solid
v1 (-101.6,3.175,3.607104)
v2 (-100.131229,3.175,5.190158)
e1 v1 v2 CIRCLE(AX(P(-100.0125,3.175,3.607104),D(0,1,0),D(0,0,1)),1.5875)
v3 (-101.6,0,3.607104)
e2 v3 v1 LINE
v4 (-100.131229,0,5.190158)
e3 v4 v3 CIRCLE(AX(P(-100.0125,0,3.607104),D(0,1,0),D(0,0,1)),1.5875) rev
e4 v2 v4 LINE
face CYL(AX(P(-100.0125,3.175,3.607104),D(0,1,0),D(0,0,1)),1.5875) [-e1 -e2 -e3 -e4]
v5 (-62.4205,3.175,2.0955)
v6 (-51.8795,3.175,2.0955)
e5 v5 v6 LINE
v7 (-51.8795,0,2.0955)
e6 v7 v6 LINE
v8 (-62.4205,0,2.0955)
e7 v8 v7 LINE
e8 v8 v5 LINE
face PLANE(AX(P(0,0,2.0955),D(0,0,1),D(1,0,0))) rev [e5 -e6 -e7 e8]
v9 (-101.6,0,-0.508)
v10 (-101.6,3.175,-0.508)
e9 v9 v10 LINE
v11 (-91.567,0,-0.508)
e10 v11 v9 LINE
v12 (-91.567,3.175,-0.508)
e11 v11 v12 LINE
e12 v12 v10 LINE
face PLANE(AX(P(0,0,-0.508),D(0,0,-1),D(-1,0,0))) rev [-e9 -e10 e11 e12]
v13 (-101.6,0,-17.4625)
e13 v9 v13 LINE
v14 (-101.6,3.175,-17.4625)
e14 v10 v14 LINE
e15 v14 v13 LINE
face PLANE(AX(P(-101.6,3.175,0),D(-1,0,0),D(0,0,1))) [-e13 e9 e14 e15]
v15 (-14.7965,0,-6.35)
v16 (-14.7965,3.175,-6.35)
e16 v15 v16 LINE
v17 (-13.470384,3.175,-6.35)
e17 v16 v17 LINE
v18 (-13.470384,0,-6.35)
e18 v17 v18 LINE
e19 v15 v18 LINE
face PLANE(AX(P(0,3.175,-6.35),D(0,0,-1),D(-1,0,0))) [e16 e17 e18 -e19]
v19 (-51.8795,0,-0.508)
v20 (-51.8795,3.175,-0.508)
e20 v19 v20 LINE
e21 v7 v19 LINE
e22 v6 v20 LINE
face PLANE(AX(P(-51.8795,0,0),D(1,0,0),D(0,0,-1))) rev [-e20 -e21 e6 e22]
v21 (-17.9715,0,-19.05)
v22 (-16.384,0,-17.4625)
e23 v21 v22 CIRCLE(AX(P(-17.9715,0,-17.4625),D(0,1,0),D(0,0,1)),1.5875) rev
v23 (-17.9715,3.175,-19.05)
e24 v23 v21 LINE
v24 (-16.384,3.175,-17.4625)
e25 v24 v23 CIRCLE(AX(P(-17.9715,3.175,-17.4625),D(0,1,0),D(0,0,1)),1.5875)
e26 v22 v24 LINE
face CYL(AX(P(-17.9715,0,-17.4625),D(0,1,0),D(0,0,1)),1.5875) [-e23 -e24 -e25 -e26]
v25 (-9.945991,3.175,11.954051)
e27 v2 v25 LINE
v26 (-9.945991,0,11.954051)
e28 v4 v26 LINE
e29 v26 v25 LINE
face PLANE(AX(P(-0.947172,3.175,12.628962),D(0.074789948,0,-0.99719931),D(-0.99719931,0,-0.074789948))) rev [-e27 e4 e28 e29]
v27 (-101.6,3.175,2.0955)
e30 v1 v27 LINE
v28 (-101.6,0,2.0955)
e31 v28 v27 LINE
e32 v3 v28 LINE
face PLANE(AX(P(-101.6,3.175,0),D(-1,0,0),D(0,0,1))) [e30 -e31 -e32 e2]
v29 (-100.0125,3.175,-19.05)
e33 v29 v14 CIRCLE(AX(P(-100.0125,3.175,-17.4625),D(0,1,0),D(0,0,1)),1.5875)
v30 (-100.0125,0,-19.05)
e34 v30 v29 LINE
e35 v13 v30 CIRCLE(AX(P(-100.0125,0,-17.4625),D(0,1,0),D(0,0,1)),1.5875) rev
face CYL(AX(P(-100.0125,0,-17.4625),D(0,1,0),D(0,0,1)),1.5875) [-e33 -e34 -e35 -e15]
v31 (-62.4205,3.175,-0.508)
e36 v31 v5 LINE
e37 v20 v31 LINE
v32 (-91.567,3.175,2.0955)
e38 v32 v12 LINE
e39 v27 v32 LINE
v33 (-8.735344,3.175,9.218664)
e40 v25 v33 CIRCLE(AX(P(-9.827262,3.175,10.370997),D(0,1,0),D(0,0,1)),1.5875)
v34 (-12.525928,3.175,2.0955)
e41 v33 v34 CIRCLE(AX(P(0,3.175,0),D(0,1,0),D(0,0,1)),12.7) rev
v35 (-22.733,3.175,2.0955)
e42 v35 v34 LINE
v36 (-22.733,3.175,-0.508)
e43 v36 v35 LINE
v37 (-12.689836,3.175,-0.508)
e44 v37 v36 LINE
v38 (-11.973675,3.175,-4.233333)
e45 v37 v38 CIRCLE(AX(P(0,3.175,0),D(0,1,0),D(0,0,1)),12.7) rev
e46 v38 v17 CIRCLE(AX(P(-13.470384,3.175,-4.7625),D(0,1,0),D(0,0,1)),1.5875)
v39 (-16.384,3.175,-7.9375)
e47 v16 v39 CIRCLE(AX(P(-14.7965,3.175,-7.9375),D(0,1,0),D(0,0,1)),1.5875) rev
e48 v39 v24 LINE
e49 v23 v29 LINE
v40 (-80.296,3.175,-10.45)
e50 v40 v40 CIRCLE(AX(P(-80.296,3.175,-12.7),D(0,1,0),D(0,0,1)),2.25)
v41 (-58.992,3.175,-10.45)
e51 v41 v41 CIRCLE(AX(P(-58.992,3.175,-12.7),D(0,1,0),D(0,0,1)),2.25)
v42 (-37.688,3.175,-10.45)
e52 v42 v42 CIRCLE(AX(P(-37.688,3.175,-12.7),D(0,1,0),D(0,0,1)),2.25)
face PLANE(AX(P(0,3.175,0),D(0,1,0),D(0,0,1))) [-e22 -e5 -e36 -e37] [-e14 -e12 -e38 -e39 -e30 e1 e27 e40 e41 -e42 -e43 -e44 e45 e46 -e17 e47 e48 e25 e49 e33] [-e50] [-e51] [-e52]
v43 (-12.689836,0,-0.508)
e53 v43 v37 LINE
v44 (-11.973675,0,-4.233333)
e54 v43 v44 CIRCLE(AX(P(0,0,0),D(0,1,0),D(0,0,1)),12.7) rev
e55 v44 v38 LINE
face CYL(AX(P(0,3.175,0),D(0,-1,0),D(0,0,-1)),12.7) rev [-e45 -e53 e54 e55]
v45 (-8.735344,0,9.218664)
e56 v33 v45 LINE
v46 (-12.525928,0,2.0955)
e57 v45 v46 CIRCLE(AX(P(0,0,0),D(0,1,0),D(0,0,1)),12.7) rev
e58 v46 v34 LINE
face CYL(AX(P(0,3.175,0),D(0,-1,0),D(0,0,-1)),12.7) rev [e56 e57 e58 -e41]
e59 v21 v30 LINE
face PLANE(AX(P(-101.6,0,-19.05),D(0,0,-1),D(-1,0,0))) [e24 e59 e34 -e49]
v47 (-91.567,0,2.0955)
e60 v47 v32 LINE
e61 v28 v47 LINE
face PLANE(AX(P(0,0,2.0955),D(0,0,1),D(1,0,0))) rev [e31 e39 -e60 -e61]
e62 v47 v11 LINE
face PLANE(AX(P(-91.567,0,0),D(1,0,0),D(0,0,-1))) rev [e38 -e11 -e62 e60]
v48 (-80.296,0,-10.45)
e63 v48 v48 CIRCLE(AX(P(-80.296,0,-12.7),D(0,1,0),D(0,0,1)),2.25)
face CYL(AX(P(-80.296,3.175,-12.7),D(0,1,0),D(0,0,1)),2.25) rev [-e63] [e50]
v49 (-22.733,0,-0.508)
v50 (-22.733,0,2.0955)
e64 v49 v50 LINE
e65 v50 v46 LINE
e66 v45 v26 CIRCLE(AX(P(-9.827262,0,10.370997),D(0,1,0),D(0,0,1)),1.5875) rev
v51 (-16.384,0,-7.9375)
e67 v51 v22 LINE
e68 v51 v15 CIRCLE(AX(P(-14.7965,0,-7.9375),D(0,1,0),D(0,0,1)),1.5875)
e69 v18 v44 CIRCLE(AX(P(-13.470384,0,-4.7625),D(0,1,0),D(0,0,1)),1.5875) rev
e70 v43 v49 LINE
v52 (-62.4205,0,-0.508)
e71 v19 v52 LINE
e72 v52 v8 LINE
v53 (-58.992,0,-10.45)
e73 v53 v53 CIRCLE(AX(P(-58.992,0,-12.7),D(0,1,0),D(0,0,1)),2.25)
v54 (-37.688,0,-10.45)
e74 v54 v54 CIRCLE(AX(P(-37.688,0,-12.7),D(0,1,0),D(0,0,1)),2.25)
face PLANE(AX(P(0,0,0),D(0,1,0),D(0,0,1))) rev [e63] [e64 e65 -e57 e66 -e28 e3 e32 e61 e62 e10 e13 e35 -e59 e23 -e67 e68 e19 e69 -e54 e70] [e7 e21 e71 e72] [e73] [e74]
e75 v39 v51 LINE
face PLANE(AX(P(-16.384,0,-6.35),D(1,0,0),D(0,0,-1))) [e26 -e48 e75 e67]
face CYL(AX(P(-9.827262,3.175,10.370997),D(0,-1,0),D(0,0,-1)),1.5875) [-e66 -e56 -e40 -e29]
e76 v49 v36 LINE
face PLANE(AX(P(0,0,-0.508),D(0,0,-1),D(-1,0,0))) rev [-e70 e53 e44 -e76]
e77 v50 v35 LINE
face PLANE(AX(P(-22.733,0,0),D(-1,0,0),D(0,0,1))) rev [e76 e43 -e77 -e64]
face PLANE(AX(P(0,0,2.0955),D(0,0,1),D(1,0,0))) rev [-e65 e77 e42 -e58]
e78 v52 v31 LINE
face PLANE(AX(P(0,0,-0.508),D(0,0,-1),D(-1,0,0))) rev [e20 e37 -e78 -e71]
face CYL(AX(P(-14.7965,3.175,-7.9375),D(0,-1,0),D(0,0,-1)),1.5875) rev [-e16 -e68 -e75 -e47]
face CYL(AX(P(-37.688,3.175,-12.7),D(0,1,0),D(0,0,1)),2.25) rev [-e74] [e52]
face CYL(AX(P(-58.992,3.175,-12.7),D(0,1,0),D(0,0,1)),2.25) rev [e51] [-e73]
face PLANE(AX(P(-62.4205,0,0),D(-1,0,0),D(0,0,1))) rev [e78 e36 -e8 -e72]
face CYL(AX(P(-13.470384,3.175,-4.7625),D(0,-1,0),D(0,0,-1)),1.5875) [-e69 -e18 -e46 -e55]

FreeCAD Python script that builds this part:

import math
import FreeCAD as App
import Part
import Sketcher
Q = App.Units.Quantity


def edges_at(feature, points):
    """Names of the edges that pass closest to the given points."""
    edges = feature.Shape.Edges
    near = lambda p: min(range(len(edges)), key=lambda i: edges[i].distToShape(Part.Vertex(*p))[0])
    return sorted({f"Edge{near(p) + 1}" for p in points})


def add_polygon(sketch, points):
    """Adds a closed chain of lines whose ends are joined by coincident constraints."""
    first, n = sketch.GeometryCount, len(points)
    for a, b in zip(points, points[1:] + points[:1]):
        sketch.addGeometry(Part.LineSegment(App.Vector(*a, 0), App.Vector(*b, 0)), False)
    for i in range(n):
        sketch.addConstraint(Sketcher.Constraint("Coincident", first + i, 2, first + (i + 1) % n, 1))

doc = App.newDocument("Part")
body = doc.addObject("PartDesign::Body", "Body")

sketch1 = body.newObject("Sketcher::SketchObject", "Sketch")
sketch1.AttachmentSupport = (doc.getObject("XZ_Plane"), [""])
sketch1.MapMode = "FlatFace"
sketch1.addGeometry([
    Part.LineSegment(App.Vector(-102, 5, 0), App.Vector(-2, 13, 0)),
    Part.ArcOfCircle(Part.Circle(App.Vector(0, 0, 0), App.Vector(0, 0, 1), 13), math.radians(99), math.radians(210)),
    Part.LineSegment(App.Vector(-11, -6, 0), App.Vector(-102, -6, 0)),
    Part.LineSegment(App.Vector(-102, -6, 0), App.Vector(-102, 5, 0)),
], False)
sketch1.addConstraint([
    Sketcher.Constraint("Coincident", 0, 2, 1, 1),
    Sketcher.Constraint("Coincident", 1, 2, 2, 1),
    Sketcher.Constraint("Coincident", 2, 2, 3, 1),
    Sketcher.Constraint("Coincident", 3, 2, 0, 1),
    Sketcher.Constraint("Horizontal", 2),
    Sketcher.Constraint("Vertical", 3),
    Sketcher.Constraint("Coincident", 1, 3, -1, 1),
    Sketcher.Constraint("Radius", 1, Q("0.5 in")),
    Sketcher.Constraint("DistanceX", 2, 2, -1, 1, Q("4 in")),
    Sketcher.Constraint("DistanceY", 3, 1, 3, 2, Q("0.45 in")),
    Sketcher.Constraint("DistanceY", -1, 1, 3, 2, Q("0.2 in")),
    Sketcher.Constraint("DistanceX", 1, 2, 0, 2, 9.104178),
])
pad1 = body.newObject("PartDesign::Pad", "Pad")
pad1.Profile = sketch1
pad1.Length = Q("0.125 in")
pad1.Reversed = True
doc.recompute()

fillet = body.newObject("PartDesign::Fillet", "Fillet")
fillet.Base = (pad1, edges_at(pad1, [(-10.999, 1.587, -6.35), (-1.894, 1.587, 12.558)]))
fillet.Radius = Q("0.0625 in")

sketch2 = body.newObject("Sketcher::SketchObject", "Sketch001")
sketch2.AttachmentSupport = (doc.getObject("XZ_Plane"), [""])
sketch2.MapMode = "FlatFace"
sketch2.AttachmentOffset = App.Placement(App.Vector(0, 0, -0.125 * 25.4), App.Rotation())
add_polygon(sketch2, [(-102, -19), (-102, -6), (-16, -6), (-16, -19)])
sketch2.addConstraint([
    Sketcher.Constraint("Vertical", 0),
    Sketcher.Constraint("Horizontal", 1),
    Sketcher.Constraint("Vertical", 2),
    Sketcher.Constraint("Horizontal", 3),
    Sketcher.Constraint("DistanceY", 0, 1, 0, 2, Q("0.5 in")),
    Sketcher.Constraint("DistanceX", 0, 2, -1, 1, Q("4 in")),
    Sketcher.Constraint("DistanceY", 0, 2, -1, 1, Q("0.25 in")),
    Sketcher.Constraint("DistanceX", 1, 1, 1, 2, 85.216),
])
pad2 = body.newObject("PartDesign::Pad", "Pad001")
pad2.Profile = sketch2
pad2.Length = Q("0.125 in")
doc.recompute()

fillet2 = body.newObject("PartDesign::Fillet", "Fillet001")
fillet2.Base = (pad2, edges_at(pad2, [
    (-101.6, 1.587, -19.05),
    (-16.384, 1.587, -19.05),
    (-16.384, 1.587, -6.35),
    (-101.6, 1.587, 5.08),
]))
fillet2.Radius = Q("0.0625 in")

sketch3 = body.newObject("Sketcher::SketchObject", "Sketch002")
sketch3.AttachmentSupport = (doc.getObject("XZ_Plane"), [""])
sketch3.MapMode = "FlatFace"
sketch3.AttachmentOffset = App.Placement(App.Vector(0, 0, -0.125 * 25.4), App.Rotation())
sketch3.addGeometry([
    Part.Circle(App.Vector(-80.3, -12.7, 0), App.Vector(0, 0, 1), 2.2),
    Part.Circle(App.Vector(-59, -12.7, 0), App.Vector(0, 0, 1), 2.2),
    Part.Circle(App.Vector(-37.7, -12.7, 0), App.Vector(0, 0, 1), 2.2),
], False)
sketch3.addConstraint([
    Sketcher.Constraint("Equal", 0, 1),
    Sketcher.Constraint("Equal", 1, 2),
    Sketcher.Constraint("Horizontal", 0, 3, 1, 3),
    Sketcher.Constraint("Horizontal", 1, 3, 2, 3),
    Sketcher.Constraint("DistanceY", 0, 3, -1, 1, Q("0.5 in")),
    Sketcher.Constraint("Diameter", 0, 4.5),
    Sketcher.Constraint("DistanceX", 0, 3, -1, 1, 80.296),
    Sketcher.Constraint("DistanceX", 1, 3, -1, 1, 58.992),
    Sketcher.Constraint("DistanceX", 2, 3, -1, 1, 37.688),
])
doc.recompute()
hole = body.newObject("PartDesign::Hole", "Hole")
hole.Profile = sketch3
hole.ThreadType = "None"
hole.Diameter = 4.5
hole.DepthType = "ThroughAll"
hole.Reversed = True

sketch4 = body.newObject("Sketcher::SketchObject", "Sketch003")
sketch4.AttachmentSupport = (doc.getObject("XZ_Plane"), [""])
sketch4.MapMode = "FlatFace"
add_polygon(sketch4, [(-101.6, 2.1), (-91.6, 2.1), (-91.6, -0.5), (-101.6, -0.5)])
add_polygon(sketch4, [(-62.4, -0.5), (-62.4, 2.1), (-51.9, 2.1), (-51.9, -0.5)])
sketch4.addGeometry(Part.LineSegment(App.Vector(-22.7, 2.1, 0), App.Vector(-12.5, 2.1, 0)), False)
sketch4.addGeometry(Part.ArcOfCircle(Part.Circle(App.Vector(0, 0, 0), App.Vector(0, 0, 1), 12.7), math.radians(170.5), math.radians(182.29)), False)
sketch4.addGeometry(Part.LineSegment(App.Vector(-12.7, -0.5, 0), App.Vector(-22.7, -0.5, 0)), False)
sketch4.addGeometry(Part.LineSegment(App.Vector(-22.7, -0.5, 0), App.Vector(-22.7, 2.1, 0)), False)
sketch4.addConstraint([
    Sketcher.Constraint("Coincident", 8, 2, 9, 1),
    Sketcher.Constraint("Coincident", 9, 2, 10, 1),
    Sketcher.Constraint("Coincident", 10, 2, 11, 1),
    Sketcher.Constraint("Coincident", 11, 2, 8, 1),
    Sketcher.Constraint("Horizontal", 0),
    Sketcher.Constraint("Vertical", 1),
    Sketcher.Constraint("Horizontal", 2),
    Sketcher.Constraint("Vertical", 3),
    Sketcher.Constraint("Vertical", 4),
    Sketcher.Constraint("Horizontal", 5),
    Sketcher.Constraint("Vertical", 6),
    Sketcher.Constraint("Horizontal", 7),
    Sketcher.Constraint("Horizontal", 8),
    Sketcher.Constraint("Horizontal", 10),
    Sketcher.Constraint("Vertical", 11),
    Sketcher.Constraint("Coincident", 9, 3, -1, 1),
    Sketcher.Constraint("Horizontal", 3, 2, 4, 2),
    Sketcher.Constraint("Horizontal", 2, 2, 6, 2),
    Sketcher.Constraint("Horizontal", 5, 2, 8, 2),
    Sketcher.Constraint("Horizontal", 7, 2, 9, 2),
    Sketcher.Constraint("Radius", 9, Q("0.5 in")),
    Sketcher.Constraint("DistanceX", 2, 2, -1, 1, Q("4 in")),
    Sketcher.Constraint("DistanceX", 0, 1, 0, 2, Q("0.395 in")),
    Sketcher.Constraint("DistanceX", 5, 1, 5, 2, Q("0.415 in")),
    Sketcher.Constraint("DistanceY", 1, 2, -1, 1, Q("0.02 in")),
    Sketcher.Constraint("DistanceX", 10, 2, 10, 1, Q("0.3954002 in")),
    Sketcher.Constraint("DistanceY", 1, 2, 1, 1, Q("0.1025 in")),
    Sketcher.Constraint("DistanceX", 0, 2, 5, 2, Q("1.5625 in")),
])
pocket1 = body.newObject("PartDesign::Pocket", "Pocket")
pocket1.Profile = sketch4
pocket1.Length = Q("0.125 in")

doc.recompute()
